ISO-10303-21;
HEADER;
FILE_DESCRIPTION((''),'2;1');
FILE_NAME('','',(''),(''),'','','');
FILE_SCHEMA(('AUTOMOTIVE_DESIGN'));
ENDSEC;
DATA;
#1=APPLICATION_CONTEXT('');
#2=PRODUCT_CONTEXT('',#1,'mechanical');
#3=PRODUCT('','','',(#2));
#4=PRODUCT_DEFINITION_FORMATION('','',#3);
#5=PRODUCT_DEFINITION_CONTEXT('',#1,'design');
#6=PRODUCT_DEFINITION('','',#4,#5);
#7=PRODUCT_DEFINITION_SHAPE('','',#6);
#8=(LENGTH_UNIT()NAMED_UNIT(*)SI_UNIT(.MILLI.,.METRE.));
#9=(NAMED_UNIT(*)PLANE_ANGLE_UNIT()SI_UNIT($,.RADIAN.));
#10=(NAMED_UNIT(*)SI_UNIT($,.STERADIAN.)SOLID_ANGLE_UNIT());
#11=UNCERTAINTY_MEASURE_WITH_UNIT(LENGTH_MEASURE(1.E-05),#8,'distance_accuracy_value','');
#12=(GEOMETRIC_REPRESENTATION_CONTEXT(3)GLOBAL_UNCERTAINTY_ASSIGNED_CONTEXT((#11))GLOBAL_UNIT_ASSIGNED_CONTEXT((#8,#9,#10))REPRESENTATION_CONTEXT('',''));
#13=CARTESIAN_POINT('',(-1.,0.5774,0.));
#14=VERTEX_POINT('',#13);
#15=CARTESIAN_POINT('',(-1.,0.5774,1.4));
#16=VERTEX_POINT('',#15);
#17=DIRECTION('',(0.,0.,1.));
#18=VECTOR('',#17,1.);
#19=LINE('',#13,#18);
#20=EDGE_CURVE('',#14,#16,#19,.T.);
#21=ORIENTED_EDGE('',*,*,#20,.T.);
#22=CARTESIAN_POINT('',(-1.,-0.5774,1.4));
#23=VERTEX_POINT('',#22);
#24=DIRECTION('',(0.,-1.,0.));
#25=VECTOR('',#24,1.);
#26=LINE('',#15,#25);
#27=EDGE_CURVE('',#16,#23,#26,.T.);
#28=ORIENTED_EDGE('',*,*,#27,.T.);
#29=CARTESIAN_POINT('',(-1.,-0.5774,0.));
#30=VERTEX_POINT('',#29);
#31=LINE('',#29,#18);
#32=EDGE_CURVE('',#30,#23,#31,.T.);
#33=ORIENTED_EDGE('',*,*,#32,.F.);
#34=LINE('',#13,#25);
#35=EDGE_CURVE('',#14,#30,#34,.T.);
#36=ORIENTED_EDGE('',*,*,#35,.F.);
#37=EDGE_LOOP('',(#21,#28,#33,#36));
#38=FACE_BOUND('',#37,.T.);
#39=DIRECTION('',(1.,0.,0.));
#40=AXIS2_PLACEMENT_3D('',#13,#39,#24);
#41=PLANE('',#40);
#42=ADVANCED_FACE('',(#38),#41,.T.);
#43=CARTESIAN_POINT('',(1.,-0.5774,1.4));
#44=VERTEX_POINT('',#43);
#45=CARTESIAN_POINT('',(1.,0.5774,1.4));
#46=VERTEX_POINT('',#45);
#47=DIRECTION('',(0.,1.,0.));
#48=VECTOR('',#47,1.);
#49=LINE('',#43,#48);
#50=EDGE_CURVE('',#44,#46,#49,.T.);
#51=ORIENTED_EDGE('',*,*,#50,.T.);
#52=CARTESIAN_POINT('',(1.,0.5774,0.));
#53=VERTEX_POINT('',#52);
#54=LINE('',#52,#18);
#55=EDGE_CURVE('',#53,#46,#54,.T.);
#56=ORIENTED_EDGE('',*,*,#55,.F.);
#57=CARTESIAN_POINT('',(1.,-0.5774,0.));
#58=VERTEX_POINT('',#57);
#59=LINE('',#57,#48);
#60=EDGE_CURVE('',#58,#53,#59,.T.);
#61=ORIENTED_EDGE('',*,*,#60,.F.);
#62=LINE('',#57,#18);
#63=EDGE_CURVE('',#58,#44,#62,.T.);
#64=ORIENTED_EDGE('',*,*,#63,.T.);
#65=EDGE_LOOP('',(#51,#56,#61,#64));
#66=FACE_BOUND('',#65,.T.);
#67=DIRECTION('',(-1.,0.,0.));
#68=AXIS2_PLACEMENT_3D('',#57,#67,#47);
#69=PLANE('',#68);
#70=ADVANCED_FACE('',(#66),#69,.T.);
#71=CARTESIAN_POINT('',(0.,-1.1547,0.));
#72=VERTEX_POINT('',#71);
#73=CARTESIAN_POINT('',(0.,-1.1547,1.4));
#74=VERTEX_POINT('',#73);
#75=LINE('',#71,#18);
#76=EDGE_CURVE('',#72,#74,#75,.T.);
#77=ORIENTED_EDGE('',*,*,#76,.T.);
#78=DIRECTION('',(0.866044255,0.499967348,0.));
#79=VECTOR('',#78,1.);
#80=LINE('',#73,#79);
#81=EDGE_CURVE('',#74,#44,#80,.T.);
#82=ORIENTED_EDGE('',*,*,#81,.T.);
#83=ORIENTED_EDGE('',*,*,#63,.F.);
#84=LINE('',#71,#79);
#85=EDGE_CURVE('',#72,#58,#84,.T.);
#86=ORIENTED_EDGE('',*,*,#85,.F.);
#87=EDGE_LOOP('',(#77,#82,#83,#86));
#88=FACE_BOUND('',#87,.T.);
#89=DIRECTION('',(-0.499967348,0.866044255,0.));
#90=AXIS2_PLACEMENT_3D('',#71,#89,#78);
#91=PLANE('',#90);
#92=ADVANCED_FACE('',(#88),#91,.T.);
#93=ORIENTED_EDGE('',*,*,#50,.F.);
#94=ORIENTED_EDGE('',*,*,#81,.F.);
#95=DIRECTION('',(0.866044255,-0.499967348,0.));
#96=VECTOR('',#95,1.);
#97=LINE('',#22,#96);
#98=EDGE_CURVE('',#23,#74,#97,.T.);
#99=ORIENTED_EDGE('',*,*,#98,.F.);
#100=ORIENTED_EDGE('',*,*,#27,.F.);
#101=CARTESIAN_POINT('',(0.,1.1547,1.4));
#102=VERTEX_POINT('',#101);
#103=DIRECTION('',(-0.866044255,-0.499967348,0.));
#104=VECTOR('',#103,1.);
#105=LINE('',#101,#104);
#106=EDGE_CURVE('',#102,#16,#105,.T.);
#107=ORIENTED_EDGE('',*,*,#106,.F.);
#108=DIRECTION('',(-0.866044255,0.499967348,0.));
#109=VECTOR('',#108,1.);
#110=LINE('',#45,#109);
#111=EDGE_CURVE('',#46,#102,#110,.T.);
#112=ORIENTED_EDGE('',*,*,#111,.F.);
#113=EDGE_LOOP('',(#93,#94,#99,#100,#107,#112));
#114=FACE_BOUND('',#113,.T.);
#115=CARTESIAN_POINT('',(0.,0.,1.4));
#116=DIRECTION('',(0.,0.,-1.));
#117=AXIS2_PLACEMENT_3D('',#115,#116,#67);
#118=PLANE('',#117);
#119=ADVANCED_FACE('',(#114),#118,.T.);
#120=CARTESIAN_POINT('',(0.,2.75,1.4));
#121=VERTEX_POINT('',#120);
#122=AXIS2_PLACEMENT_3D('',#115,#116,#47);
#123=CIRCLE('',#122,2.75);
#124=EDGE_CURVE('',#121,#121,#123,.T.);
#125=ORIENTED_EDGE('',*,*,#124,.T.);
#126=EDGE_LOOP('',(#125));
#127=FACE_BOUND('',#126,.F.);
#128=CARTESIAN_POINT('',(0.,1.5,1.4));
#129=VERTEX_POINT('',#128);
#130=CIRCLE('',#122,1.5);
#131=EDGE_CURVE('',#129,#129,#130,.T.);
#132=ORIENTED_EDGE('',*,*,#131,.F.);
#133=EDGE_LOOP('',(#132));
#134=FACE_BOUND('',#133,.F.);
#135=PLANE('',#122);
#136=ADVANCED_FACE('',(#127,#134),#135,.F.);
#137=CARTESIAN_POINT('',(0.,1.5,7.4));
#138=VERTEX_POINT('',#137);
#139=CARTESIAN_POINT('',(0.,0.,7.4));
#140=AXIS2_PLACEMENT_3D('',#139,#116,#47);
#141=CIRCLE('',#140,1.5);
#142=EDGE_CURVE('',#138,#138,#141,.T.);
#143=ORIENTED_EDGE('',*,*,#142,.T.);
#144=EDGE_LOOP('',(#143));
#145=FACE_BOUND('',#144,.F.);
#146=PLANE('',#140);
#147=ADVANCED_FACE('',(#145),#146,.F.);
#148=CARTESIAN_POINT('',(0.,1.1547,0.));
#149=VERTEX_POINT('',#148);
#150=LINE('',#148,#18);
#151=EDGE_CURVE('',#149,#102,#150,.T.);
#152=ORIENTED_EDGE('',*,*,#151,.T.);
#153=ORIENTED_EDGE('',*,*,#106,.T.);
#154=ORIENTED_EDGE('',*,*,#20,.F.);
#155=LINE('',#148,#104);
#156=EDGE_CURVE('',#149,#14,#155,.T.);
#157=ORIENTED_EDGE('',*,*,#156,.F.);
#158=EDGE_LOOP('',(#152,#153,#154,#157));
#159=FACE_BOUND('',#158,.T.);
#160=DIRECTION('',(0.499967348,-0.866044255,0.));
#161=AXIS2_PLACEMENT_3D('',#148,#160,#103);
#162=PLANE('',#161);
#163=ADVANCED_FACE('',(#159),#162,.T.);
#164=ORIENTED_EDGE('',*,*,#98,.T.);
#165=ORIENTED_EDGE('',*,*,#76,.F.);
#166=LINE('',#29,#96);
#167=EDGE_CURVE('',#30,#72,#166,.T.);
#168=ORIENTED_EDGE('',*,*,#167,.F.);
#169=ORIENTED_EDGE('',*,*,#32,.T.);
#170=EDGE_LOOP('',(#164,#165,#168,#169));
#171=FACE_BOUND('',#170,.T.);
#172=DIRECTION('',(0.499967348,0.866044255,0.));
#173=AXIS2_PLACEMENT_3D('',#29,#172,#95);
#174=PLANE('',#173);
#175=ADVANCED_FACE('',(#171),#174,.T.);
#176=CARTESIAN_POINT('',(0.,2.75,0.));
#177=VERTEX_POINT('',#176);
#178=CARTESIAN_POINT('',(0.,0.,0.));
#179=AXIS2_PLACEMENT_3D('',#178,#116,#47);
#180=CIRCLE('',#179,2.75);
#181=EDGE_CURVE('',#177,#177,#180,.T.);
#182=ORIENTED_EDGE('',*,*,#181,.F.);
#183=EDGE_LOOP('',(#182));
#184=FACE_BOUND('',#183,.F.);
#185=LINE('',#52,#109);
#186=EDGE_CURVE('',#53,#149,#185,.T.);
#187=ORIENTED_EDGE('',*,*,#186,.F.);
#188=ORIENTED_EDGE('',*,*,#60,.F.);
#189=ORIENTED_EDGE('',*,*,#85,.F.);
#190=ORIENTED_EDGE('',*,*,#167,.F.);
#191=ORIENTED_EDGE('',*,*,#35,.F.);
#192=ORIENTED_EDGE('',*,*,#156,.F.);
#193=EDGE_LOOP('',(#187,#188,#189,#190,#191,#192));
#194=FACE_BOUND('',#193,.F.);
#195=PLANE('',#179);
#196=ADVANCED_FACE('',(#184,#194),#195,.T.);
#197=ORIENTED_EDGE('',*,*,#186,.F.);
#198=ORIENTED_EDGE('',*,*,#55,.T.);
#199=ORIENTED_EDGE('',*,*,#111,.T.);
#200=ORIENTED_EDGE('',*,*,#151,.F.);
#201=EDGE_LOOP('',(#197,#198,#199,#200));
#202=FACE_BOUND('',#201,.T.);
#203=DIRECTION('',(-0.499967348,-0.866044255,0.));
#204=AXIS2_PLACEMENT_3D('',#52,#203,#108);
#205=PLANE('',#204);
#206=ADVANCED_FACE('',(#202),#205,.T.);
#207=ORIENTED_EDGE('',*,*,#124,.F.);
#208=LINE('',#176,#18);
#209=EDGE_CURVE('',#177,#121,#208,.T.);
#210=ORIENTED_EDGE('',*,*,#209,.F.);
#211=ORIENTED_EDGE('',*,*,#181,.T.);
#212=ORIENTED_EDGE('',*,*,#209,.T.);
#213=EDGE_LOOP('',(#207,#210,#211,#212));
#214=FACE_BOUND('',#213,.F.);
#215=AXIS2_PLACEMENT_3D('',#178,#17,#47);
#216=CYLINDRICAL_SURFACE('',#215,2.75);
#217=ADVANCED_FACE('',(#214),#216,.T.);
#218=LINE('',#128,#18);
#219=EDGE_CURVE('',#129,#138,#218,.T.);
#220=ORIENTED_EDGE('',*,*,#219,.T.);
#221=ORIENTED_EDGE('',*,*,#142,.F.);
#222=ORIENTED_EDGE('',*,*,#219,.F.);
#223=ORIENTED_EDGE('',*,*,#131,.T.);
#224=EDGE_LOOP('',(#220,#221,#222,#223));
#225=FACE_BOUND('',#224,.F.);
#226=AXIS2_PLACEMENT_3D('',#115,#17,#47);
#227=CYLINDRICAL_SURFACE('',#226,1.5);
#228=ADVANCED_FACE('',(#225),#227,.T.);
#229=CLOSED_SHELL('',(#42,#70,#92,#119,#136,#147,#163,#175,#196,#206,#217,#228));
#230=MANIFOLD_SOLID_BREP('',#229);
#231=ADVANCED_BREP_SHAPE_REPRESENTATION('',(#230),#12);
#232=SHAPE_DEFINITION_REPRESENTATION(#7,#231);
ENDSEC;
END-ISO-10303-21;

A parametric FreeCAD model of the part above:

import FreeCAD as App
import Part
import Sketcher

V = App.Vector
Q = App.Units.Quantity


def add_polygon(sketch, points):
    """Adds a closed chain of lines whose ends are joined by coincident constraints."""
    first, n = sketch.GeometryCount, len(points)
    for a, b in zip(points, points[1:] + points[:1]):
        sketch.addGeometry(Part.LineSegment(App.Vector(*a, 0), App.Vector(*b, 0)), False)
    for i in range(n):
        sketch.addConstraint(Sketcher.Constraint("Coincident", first + i, 2, first + (i + 1) % n, 1))

doc = App.newDocument("Part")
params = doc.addObject("Spreadsheet::Sheet", "Params")
for row, (alias, value) in enumerate([
    ("sketch1_height", "6 mm"),
    ("sketch1_width", "1.5 mm"),
    ("sketch1_height2", "1.4 mm"),
    ("sketch1_width2", "2.75 mm"),
    ("revolution_angle", "360 deg"),
    ("pocket1_length", "1.4 mm"),
], start=1):
    params.set(f"A{row}", alias)
    params.set(f"B{row}", "=" + value)
    params.setAlias(f"B{row}", alias)

body = doc.addObject("PartDesign::Body", "Body")

sketch1 = body.newObject("Sketcher::SketchObject", "Sketch")
sketch1.AttachmentSupport = (doc.getObject("YZ_Plane"), [""])
sketch1.MapMode = "FlatFace"
add_polygon(sketch1, [(1.5, 7.4), (0, 7.4), (0, 0), (2.8, 0), (2.8, 1.4), (1.5, 1.4)])
sketch1.addConstraint([
    Sketcher.Constraint("Horizontal", 0),
    Sketcher.Constraint("Vertical", 1),
    Sketcher.Constraint("Horizontal", 2),
    Sketcher.Constraint("Vertical", 3),
    Sketcher.Constraint("Horizontal", 4),
    Sketcher.Constraint("Vertical", 5),
    Sketcher.Constraint("Coincident", 1, 2, -1, 1),
    Sketcher.Constraint("DistanceY", 5, 1, 5, 2, Q("6 mm")),
    Sketcher.Constraint("DistanceX", 0, 2, 0, 1, Q("1.5 mm")),
    Sketcher.Constraint("DistanceY", 3, 1, 3, 2, Q("1.4 mm")),
    Sketcher.Constraint("DistanceX", 2, 1, 2, 2, Q("2.75 mm")),
])
sketch1.setExpression("Constraints[13]", "Params.sketch1_height")
sketch1.setExpression("Constraints[14]", "Params.sketch1_width")
sketch1.setExpression("Constraints[15]", "Params.sketch1_height2")
sketch1.setExpression("Constraints[16]", "Params.sketch1_width2")
revolution = body.newObject("PartDesign::Revolution", "Revolution")
revolution.Profile = sketch1
revolution.ReferenceAxis = (sketch1, ["V_Axis"])
revolution.setExpression("Angle", "Params.revolution_angle")

sketch2 = body.newObject("Sketcher::SketchObject", "Sketch001")
sketch2.AttachmentSupport = (doc.getObject("XY_Plane"), [""])
sketch2.MapMode = "FlatFace"
add_polygon(sketch2, [(-1, 0.6), (0, 1.2), (1, 0.6), (1, -0.6), (0, -1.2), (-1, -0.6)])
sketch2.addConstraint([
    Sketcher.Constraint("Vertical", 2),
    Sketcher.Constraint("Vertical", 5),
    Sketcher.Constraint("Symmetric", 0, 2, 3, 2, -1, 1),
    Sketcher.Constraint("Symmetric", 1, 2, 4, 2, -1, 1),
    Sketcher.Constraint("PointOnObject", 0, 2, -2),
    Sketcher.Constraint("Parallel", 0, 3),
    Sketcher.Constraint("Horizontal", 2, 2, 4, 2),
    Sketcher.Constraint("DistanceX", 4, 2, 2, 2, Q("2 mm")),
    Sketcher.Constraint("DistanceY", 2, 2, 2, 1, Q("1.1548 mm")),
    Sketcher.Constraint("DistanceY", 2, 2, 0, 2, Q("1.732 mm")),
])
pocket1 = body.newObject("PartDesign::Pocket", "Pocket")
pocket1.Profile = sketch2
pocket1.setExpression("Length", "Params.pocket1_length")
pocket1.Reversed = True

doc.recompute()
